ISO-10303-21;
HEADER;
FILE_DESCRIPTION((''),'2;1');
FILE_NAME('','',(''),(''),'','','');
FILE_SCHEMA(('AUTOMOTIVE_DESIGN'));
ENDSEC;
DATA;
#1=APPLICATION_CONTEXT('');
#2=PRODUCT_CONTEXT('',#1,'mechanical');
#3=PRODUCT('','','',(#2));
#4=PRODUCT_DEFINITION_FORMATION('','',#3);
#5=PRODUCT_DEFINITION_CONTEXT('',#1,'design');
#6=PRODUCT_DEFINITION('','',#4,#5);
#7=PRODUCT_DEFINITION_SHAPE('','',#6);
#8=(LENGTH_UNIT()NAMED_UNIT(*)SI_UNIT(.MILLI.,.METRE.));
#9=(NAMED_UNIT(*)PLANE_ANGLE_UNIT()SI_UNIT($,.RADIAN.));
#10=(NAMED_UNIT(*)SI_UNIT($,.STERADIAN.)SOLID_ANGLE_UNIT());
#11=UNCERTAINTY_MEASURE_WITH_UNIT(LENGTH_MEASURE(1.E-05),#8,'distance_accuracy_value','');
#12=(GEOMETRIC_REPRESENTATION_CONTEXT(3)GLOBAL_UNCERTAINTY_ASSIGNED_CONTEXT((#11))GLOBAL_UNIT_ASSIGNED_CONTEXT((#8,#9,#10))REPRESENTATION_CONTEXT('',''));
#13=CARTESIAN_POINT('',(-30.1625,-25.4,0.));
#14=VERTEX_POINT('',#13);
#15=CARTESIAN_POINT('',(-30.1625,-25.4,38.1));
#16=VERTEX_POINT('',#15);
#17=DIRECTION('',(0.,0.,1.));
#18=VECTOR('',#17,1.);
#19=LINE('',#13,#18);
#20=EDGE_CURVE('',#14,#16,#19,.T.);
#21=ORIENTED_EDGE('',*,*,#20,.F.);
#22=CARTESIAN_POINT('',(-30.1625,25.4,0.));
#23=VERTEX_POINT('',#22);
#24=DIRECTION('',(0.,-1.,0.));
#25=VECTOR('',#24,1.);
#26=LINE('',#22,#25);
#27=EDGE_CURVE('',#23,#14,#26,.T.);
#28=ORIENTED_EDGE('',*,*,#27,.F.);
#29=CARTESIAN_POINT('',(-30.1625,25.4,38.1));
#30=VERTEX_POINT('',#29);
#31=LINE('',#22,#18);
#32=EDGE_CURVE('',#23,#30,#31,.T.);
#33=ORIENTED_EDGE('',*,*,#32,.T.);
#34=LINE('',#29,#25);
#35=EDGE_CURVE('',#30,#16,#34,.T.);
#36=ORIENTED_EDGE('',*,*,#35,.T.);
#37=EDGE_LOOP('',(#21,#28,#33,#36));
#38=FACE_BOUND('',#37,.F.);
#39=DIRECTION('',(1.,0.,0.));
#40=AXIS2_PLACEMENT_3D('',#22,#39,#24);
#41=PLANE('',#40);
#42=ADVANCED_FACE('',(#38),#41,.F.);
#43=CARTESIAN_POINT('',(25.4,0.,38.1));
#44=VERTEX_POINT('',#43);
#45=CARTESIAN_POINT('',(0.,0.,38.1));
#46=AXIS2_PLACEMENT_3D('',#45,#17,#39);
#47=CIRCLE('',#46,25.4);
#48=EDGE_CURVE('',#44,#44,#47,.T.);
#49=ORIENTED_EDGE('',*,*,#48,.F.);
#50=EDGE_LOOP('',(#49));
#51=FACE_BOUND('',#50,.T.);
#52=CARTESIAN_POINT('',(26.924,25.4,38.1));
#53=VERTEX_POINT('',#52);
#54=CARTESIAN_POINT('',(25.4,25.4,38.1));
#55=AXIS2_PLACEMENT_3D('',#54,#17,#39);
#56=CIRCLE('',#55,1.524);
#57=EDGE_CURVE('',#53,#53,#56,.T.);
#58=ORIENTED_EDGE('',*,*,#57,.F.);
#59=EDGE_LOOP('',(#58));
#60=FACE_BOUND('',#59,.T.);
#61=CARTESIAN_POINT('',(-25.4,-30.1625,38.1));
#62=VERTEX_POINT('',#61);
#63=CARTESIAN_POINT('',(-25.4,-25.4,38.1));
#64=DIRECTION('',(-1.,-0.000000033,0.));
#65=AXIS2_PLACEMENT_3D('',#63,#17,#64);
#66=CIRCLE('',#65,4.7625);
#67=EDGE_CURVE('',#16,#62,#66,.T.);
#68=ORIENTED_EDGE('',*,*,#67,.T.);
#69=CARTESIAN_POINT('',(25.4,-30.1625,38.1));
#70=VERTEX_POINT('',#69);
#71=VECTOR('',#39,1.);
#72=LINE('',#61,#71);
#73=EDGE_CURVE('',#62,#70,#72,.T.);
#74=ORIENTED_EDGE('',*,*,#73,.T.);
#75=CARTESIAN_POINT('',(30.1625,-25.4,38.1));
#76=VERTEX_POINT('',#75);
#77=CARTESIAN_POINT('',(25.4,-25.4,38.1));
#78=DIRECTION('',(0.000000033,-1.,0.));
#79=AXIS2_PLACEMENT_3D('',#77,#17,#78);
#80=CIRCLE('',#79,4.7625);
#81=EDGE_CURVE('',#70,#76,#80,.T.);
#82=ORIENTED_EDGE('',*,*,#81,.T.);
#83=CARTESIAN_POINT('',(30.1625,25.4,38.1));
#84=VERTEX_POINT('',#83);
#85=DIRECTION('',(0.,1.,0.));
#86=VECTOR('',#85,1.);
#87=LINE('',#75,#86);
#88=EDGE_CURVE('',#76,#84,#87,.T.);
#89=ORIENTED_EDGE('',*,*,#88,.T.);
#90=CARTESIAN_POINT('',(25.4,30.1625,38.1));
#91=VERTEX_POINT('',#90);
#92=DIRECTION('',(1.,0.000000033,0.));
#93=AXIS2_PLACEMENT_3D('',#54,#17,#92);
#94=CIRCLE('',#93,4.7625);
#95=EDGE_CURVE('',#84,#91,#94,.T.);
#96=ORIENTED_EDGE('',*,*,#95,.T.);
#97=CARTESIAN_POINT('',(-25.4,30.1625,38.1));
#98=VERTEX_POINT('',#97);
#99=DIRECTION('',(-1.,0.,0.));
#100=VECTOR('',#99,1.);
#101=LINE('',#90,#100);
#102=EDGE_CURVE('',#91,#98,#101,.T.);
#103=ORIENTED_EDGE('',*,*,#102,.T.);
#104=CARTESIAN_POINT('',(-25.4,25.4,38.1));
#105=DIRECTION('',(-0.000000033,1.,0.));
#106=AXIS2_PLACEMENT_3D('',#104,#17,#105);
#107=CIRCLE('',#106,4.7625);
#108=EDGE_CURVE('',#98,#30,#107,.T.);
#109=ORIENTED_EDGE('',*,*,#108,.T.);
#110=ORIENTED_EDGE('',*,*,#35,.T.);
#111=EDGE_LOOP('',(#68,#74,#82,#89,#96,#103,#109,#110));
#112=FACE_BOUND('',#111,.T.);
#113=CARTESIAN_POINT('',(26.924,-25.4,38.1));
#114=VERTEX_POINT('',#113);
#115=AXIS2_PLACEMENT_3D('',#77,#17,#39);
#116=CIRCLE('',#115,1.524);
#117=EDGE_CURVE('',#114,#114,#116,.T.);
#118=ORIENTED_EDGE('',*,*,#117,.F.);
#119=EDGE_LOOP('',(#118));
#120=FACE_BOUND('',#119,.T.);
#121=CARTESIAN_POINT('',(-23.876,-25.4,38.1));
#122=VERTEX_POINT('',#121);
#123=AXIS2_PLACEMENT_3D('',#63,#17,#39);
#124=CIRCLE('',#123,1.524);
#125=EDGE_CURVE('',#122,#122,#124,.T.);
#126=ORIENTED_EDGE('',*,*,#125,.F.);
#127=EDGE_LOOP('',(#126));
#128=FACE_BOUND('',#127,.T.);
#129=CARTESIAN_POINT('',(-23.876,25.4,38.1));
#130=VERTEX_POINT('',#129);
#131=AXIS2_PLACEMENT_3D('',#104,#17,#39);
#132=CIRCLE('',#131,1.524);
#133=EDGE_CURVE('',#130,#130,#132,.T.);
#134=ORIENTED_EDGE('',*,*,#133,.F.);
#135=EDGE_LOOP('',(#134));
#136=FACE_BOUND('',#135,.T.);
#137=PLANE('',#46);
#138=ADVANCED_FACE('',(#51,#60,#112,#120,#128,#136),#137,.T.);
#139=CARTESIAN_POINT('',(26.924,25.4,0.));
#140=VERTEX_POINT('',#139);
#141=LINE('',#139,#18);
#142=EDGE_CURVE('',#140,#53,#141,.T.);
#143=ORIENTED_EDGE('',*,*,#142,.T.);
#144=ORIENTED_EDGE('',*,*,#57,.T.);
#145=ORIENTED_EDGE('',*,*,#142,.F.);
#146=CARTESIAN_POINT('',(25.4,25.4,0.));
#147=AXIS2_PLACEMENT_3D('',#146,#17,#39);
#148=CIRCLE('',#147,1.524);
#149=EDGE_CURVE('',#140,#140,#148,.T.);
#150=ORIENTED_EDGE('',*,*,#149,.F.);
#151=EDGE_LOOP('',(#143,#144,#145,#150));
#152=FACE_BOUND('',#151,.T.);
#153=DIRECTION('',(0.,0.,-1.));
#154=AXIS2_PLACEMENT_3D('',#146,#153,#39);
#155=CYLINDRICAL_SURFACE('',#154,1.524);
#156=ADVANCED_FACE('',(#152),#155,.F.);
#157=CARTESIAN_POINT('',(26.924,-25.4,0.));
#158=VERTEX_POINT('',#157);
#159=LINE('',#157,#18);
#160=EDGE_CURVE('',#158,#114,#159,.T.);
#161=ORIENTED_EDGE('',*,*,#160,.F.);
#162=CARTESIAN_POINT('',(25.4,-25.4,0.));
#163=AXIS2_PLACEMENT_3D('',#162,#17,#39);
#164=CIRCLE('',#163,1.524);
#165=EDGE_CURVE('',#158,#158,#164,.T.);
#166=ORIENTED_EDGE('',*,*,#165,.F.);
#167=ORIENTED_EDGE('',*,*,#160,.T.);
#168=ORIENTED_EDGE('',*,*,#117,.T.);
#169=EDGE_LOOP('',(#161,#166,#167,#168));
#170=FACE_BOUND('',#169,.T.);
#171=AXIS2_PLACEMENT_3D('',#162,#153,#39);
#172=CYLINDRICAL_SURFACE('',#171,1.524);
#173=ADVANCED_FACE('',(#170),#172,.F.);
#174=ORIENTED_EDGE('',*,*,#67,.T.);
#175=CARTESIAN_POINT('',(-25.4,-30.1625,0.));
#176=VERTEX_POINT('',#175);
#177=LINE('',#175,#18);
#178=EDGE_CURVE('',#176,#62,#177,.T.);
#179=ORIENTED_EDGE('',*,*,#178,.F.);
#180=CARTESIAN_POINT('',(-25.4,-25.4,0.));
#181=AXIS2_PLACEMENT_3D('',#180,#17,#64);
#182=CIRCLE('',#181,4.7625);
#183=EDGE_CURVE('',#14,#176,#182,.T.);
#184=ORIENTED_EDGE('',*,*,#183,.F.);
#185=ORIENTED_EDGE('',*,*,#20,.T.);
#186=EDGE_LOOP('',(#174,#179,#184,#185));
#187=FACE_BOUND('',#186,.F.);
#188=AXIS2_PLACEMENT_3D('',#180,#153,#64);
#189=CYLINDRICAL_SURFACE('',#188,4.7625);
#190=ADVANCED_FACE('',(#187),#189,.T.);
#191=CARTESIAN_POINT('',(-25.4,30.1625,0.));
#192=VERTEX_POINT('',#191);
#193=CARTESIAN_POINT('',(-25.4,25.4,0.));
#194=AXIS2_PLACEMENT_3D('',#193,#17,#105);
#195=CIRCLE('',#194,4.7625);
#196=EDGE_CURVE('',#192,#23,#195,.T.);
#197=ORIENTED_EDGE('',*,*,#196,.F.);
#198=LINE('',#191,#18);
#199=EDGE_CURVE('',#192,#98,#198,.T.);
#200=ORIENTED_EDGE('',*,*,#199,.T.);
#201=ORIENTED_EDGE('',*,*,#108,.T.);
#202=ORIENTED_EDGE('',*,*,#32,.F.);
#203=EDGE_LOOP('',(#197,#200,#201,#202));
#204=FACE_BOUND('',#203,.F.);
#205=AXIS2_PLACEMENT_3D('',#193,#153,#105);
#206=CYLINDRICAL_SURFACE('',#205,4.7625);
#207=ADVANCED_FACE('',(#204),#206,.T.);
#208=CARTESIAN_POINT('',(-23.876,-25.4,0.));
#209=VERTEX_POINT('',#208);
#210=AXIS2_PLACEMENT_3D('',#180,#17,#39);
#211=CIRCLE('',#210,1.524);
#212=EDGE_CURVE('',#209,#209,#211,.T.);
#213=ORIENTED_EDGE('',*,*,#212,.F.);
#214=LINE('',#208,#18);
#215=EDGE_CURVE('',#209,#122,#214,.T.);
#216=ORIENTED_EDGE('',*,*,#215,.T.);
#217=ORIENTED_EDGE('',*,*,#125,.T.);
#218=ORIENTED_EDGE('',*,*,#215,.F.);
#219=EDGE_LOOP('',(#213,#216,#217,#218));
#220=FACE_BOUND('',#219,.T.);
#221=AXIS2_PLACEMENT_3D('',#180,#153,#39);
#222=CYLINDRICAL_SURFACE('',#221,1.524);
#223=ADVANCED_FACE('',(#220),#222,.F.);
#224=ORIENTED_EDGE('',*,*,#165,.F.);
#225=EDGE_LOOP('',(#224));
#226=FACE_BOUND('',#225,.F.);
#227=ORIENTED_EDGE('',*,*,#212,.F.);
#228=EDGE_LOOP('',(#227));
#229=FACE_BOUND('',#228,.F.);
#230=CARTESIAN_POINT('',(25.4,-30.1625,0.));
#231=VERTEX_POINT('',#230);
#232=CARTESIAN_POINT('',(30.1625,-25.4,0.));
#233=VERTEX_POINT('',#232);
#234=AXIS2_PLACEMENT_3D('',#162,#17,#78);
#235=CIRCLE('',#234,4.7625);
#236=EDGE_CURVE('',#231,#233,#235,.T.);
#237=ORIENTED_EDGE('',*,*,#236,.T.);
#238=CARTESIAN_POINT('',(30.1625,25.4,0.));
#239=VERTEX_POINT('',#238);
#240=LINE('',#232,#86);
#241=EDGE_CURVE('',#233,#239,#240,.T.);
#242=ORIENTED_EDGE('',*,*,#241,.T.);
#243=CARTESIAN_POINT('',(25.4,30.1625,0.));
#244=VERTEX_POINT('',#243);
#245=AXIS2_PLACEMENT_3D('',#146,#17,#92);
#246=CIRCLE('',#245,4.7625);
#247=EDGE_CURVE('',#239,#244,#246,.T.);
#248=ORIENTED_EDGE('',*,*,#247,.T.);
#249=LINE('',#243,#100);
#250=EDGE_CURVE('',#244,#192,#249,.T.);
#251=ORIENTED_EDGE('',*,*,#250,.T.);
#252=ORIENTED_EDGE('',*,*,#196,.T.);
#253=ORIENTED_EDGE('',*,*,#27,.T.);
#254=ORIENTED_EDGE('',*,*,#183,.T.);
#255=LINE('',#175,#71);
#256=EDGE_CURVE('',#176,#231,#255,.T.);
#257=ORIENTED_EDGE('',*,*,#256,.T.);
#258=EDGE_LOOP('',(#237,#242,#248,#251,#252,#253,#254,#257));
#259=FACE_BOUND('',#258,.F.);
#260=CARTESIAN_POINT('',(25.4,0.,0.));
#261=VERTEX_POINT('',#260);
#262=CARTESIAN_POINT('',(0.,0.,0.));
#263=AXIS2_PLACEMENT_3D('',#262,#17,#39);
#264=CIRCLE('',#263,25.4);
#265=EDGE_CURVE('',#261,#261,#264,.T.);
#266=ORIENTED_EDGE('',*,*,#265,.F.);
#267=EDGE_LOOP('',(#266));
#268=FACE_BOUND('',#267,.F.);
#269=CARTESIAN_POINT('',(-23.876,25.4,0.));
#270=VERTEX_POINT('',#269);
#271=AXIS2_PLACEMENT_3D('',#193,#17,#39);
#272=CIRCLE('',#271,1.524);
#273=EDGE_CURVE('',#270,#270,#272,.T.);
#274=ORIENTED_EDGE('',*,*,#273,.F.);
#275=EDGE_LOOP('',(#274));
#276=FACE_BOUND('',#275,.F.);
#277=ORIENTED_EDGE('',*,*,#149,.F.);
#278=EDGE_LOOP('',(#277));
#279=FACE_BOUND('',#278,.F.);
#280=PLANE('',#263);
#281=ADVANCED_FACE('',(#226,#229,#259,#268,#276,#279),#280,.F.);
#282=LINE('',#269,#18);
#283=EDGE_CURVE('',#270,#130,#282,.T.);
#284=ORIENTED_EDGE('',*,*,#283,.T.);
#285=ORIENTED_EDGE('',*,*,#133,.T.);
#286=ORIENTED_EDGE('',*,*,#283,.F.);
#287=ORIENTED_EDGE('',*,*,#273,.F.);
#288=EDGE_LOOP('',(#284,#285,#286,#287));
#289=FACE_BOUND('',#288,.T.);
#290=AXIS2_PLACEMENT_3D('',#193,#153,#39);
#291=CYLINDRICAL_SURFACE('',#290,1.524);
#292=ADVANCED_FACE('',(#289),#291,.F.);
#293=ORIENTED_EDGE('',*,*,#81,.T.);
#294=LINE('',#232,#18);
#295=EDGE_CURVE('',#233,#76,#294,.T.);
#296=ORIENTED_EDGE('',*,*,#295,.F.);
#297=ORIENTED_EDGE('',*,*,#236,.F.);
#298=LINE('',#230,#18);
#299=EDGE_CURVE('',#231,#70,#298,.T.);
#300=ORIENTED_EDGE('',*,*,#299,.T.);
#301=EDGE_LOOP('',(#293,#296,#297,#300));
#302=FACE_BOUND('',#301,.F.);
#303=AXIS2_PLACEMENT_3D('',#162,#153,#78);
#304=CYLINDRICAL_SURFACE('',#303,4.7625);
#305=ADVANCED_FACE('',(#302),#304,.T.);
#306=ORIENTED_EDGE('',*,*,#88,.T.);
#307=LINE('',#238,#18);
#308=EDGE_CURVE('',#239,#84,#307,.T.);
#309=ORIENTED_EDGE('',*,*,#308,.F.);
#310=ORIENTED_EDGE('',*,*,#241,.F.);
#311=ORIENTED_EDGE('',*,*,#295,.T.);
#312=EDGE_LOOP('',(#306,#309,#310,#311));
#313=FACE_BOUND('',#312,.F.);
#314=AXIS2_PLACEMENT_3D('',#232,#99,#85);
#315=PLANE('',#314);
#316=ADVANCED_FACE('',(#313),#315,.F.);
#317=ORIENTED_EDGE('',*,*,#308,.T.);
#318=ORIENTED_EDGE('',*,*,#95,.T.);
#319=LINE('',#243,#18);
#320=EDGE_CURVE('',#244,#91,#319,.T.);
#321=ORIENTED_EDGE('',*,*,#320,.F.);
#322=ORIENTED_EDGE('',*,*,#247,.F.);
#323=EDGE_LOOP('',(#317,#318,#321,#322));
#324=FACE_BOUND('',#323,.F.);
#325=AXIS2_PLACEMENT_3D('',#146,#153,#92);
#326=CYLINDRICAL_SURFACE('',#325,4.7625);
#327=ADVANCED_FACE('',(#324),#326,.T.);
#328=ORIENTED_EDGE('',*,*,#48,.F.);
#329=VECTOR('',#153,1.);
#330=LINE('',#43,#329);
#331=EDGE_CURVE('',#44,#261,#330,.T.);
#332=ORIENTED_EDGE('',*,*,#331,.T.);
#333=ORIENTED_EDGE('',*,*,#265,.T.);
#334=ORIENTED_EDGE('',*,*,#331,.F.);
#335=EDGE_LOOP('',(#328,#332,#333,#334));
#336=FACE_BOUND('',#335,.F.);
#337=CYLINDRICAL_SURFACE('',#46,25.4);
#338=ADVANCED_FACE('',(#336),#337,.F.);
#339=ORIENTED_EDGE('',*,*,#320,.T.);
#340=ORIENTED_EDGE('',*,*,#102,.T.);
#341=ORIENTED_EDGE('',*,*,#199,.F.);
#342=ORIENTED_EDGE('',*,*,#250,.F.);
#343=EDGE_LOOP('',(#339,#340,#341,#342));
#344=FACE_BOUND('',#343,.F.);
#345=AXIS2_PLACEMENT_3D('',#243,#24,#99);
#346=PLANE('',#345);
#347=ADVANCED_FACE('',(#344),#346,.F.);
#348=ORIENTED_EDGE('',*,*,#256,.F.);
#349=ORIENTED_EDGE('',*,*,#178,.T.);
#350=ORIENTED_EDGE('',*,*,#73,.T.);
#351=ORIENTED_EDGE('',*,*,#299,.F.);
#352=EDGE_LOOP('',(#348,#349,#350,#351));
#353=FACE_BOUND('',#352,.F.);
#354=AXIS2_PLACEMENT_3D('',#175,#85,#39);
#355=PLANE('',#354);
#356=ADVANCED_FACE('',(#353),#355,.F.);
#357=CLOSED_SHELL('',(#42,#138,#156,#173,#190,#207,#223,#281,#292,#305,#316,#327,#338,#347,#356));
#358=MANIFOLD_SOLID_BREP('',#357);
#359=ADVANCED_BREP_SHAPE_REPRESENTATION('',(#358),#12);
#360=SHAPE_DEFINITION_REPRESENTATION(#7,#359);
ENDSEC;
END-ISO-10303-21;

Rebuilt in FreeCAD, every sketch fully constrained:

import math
import FreeCAD as App
import Part
import Sketcher
from FreeCAD import Vector
Q = App.Units.Quantity

doc = App.newDocument("Part")
params = doc.addObject("Spreadsheet::Sheet", "Params")
for row, (alias, value) in enumerate([
    ("sketch1_diameter", "0.12 in"),
    ("sketch1_width", "2 in"),
    ("sketch1_radius", "0.1875 in"),
    ("pad1_length", "1.5 in"),
    ("sketch2_diameter", "2 in"),
], start=1):
    params.set(f"A{row}", alias)
    params.set(f"B{row}", "=" + value)
    params.setAlias(f"B{row}", alias)

body = doc.addObject("PartDesign::Body", "Body")

sketch1 = body.newObject("Sketcher::SketchObject", "Sketch")
sketch1.AttachmentSupport = (doc.getObject("XY_Plane"), [""])
sketch1.MapMode = "FlatFace"
sketch1.addGeometry([
    Part.ArcOfCircle(Part.Circle(Vector(25.4, 25.4, 0), Vector(0, 0, 1), 4.8), math.radians(0), math.radians(90)),
    Part.LineSegment(Vector(25.4, 30.2, 0), Vector(-25.4, 30.2, 0)),
    Part.ArcOfCircle(Part.Circle(Vector(-25.4, 25.4, 0), Vector(0, 0, 1), 4.8), math.radians(90), math.radians(180)),
    Part.LineSegment(Vector(-30.2, 25.4, 0), Vector(-30.2, -25.4, 0)),
    Part.ArcOfCircle(Part.Circle(Vector(-25.4, -25.4, 0), Vector(0, 0, 1), 4.8), math.radians(-180), math.radians(-90)),
    Part.LineSegment(Vector(-25.4, -30.2, 0), Vector(25.4, -30.2, 0)),
    Part.ArcOfCircle(Part.Circle(Vector(25.4, -25.4, 0), Vector(0, 0, 1), 4.8), math.radians(-90), math.radians(0)),
    Part.LineSegment(Vector(30.2, -25.4, 0), Vector(30.2, 25.4, 0)),
    Part.Circle(Vector(-25.4, -25.4, 0), Vector(0, 0, 1), 1.5),
    Part.Circle(Vector(25.4, -25.4, 0), Vector(0, 0, 1), 1.5),
    Part.Circle(Vector(-25.4, 25.4, 0), Vector(0, 0, 1), 1.5),
    Part.Circle(Vector(25.4, 25.4, 0), Vector(0, 0, 1), 1.5),
], False)
sketch1.addConstraint([
    Sketcher.Constraint("Tangent", 0, 2, 1, 1),
    Sketcher.Constraint("Tangent", 1, 2, 2, 1),
    Sketcher.Constraint("Tangent", 2, 2, 3, 1),
    Sketcher.Constraint("Tangent", 3, 2, 4, 1),
    Sketcher.Constraint("Tangent", 4, 2, 5, 1),
    Sketcher.Constraint("Tangent", 5, 2, 6, 1),
    Sketcher.Constraint("Tangent", 6, 2, 7, 1),
    Sketcher.Constraint("Tangent", 7, 2, 0, 1),
    Sketcher.Constraint("Horizontal", 1),
    Sketcher.Constraint("Vertical", 3),
    Sketcher.Constraint("Horizontal", 5),
    Sketcher.Constraint("Vertical", 7),
    Sketcher.Constraint("Coincident", 8, 3, 4, 3),
    Sketcher.Constraint("Coincident", 9, 3, 6, 3),
    Sketcher.Constraint("Coincident", 10, 3, 2, 3),
    Sketcher.Constraint("Coincident", 11, 3, 0, 3),
    Sketcher.Constraint("Equal", 0, 2),
    Sketcher.Constraint("Equal", 2, 4),
    Sketcher.Constraint("Equal", 4, 6),
    Sketcher.Constraint("Equal", 8, 9),
    Sketcher.Constraint("Equal", 9, 10),
    Sketcher.Constraint("Equal", 10, 11),
    Sketcher.Constraint("Symmetric", 0, 3, 4, 3, -1, 1),
    Sketcher.Constraint("Equal", 5, 3),
    Sketcher.Constraint("Diameter", 8, Q("0.12 in")),
    Sketcher.Constraint("DistanceX", 1, 2, 1, 1, Q("2 in")),
    Sketcher.Constraint("Radius", 0, Q("0.1875 in")),
])
sketch1.setExpression("Constraints[24]", "Params.sketch1_diameter")
sketch1.setExpression("Constraints[25]", "Params.sketch1_width")
sketch1.setExpression("Constraints[26]", "Params.sketch1_radius")
pad1 = body.newObject("PartDesign::Pad", "Pad")
pad1.Profile = sketch1
pad1.setExpression("Length", "Params.pad1_length")

sketch2 = body.newObject("Sketcher::SketchObject", "Sketch001")
sketch2.AttachmentSupport = (doc.getObject("XY_Plane"), [""])
sketch2.MapMode = "FlatFace"
sketch2.AttachmentOffset = App.Placement(Vector(0, 0, 1.5 * 25.4), App.Rotation())
sketch2.addGeometry(Part.Circle(Vector(0, 0, 0), Vector(0, 0, 1), 25), False)
sketch2.addConstraint([
    Sketcher.Constraint("Coincident", 0, 3, -1, 1),
    Sketcher.Constraint("Diameter", 0, Q("2 in")),
])
sketch2.setExpression("Constraints[1]", "Params.sketch2_diameter")
pocket1 = body.newObject("PartDesign::Pocket", "Pocket")
pocket1.Profile = sketch2
pocket1.Type = "ThroughAll"

doc.recompute()
